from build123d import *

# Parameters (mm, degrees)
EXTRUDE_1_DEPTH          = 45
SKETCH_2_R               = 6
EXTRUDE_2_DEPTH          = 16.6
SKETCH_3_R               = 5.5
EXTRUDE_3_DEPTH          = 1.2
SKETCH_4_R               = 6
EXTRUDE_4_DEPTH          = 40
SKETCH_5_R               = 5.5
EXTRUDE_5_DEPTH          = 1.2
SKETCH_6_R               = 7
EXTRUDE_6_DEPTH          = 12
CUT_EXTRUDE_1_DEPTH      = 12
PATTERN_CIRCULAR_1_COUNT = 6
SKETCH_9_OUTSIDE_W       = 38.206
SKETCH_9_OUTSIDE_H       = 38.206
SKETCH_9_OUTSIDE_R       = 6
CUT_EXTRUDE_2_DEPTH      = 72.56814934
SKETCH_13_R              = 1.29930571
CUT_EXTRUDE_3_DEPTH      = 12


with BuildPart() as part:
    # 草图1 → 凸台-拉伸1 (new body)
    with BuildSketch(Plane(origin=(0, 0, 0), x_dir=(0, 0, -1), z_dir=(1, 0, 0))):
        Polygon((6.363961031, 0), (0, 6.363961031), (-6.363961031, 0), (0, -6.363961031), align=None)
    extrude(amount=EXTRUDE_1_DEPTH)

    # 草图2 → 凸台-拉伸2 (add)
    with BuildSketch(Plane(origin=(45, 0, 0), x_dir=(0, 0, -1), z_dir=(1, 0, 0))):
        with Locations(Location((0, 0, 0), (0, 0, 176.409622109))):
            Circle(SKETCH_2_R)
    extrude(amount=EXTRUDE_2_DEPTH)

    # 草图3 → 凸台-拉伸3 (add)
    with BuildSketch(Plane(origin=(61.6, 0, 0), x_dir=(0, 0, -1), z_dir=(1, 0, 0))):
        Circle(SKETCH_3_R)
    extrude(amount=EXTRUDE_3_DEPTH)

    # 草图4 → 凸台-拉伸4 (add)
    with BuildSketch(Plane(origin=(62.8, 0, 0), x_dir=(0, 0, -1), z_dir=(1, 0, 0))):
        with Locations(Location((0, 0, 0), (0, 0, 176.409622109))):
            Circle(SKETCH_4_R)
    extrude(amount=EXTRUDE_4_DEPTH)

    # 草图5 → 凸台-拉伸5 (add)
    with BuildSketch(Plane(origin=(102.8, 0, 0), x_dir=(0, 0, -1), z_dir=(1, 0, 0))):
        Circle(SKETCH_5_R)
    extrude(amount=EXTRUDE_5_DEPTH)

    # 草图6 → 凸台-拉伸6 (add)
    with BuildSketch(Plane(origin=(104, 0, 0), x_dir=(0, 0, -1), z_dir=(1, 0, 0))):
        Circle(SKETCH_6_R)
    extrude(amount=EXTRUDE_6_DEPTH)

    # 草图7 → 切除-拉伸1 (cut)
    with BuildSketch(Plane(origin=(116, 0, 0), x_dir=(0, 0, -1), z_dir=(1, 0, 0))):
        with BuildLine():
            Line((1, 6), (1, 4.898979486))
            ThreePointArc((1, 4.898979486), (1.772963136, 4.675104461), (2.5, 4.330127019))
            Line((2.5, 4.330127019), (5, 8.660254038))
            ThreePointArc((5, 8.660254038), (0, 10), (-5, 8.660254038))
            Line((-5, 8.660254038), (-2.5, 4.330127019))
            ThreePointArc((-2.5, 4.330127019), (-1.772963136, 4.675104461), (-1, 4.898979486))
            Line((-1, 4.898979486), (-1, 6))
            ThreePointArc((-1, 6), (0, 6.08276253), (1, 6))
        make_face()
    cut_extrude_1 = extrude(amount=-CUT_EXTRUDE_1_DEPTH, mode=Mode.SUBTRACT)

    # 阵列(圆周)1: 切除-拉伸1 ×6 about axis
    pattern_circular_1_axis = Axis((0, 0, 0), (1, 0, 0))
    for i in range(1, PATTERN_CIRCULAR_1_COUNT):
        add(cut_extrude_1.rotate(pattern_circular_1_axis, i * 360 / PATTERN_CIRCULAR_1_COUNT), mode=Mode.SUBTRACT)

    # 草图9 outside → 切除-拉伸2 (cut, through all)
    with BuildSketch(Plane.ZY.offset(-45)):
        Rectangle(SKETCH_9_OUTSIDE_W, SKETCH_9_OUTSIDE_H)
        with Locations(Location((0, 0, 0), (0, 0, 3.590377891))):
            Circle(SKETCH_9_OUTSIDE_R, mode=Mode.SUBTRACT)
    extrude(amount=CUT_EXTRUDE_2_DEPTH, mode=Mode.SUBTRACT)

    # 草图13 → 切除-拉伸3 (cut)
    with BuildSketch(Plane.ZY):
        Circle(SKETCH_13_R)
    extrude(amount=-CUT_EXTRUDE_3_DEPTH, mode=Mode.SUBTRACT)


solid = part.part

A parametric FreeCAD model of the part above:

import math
import FreeCAD as App
import Part
import Sketcher
from FreeCAD import Vector
Q = App.Units.Quantity

doc = App.newDocument("Part")
body = doc.addObject("PartDesign::Body", "Body")

# Sketch on YZ plane
sketch1 = body.newObject("Sketcher::SketchObject", "Sketch")
sketch1.AttachmentSupport = (doc.getObject("YZ_Plane"), [""])
sketch1.MapMode = "FlatFace"
sketch1.addGeometry([
    Part.LineSegment(Vector(0, -6, 0), Vector(6, 0, 0)),
    Part.LineSegment(Vector(6, 0, 0), Vector(0, 6, 0)),
    Part.LineSegment(Vector(0, 6, 0), Vector(-6, 0, 0)),
    Part.LineSegment(Vector(-6, 0, 0), Vector(0, -6, 0)),
], False)
sketch1.addConstraint([
    Sketcher.Constraint("Coincident", 0, 2, 1, 1),
    Sketcher.Constraint("Coincident", 1, 2, 2, 1),
    Sketcher.Constraint("Coincident", 2, 2, 3, 1),
    Sketcher.Constraint("Coincident", 3, 2, 0, 1),
    Sketcher.Constraint("Symmetric", 0, 2, 2, 2, -1, 1),
    Sketcher.Constraint("Symmetric", 1, 2, 3, 2, -1, 1),
    Sketcher.Constraint("PointOnObject", 0, 2, -1),
    Sketcher.Constraint("PointOnObject", 1, 2, -2),
    Sketcher.Constraint("Perpendicular", 0, 1),
    Sketcher.Constraint("Distance", 0, 9.0),
])
pad1 = body.newObject("PartDesign::Pad", "Pad")
pad1.Profile = sketch1
pad1.Length = 45

# Sketch on YZ plane
sketch2 = body.newObject("Sketcher::SketchObject", "Sketch001")
sketch2.AttachmentSupport = (doc.getObject("YZ_Plane"), [""])
sketch2.MapMode = "FlatFace"
sketch2.AttachmentOffset = App.Placement(Vector(0, 0, 45), App.Rotation())
sketch2.addGeometry(Part.Circle(Vector(0, 0, 0), Vector(0, 0, 1), 6), False)
sketch2.addConstraint([
    Sketcher.Constraint("Coincident", 0, 3, -1, 1),
    Sketcher.Constraint("Diameter", 0, 12.0),
])
pad2 = body.newObject("PartDesign::Pad", "Pad001")
pad2.Profile = sketch2
pad2.Length = 16.6

# Sketch on YZ plane
sketch3 = body.newObject("Sketcher::SketchObject", "Sketch002")
sketch3.AttachmentSupport = (doc.getObject("YZ_Plane"), [""])
sketch3.MapMode = "FlatFace"
sketch3.AttachmentOffset = App.Placement(Vector(0, 0, 61.6), App.Rotation())
sketch3.addGeometry(Part.Circle(Vector(0, 0, 0), Vector(0, 0, 1), 6), False)
sketch3.addConstraint([
    Sketcher.Constraint("Coincident", 0, 3, -1, 1),
    Sketcher.Constraint("Diameter", 0, 11.0),
])
pad3 = body.newObject("PartDesign::Pad", "Pad002")
pad3.Profile = sketch3
pad3.Length = 1.2

# Sketch on YZ plane
sketch4 = body.newObject("Sketcher::SketchObject", "Sketch003")
sketch4.AttachmentSupport = (doc.getObject("YZ_Plane"), [""])
sketch4.MapMode = "FlatFace"
sketch4.AttachmentOffset = App.Placement(Vector(0, 0, 62.8), App.Rotation())
sketch4.addGeometry(Part.Circle(Vector(0, 0, 0), Vector(0, 0, 1), 6), False)
sketch4.addConstraint([
    Sketcher.Constraint("Coincident", 0, 3, -1, 1),
    Sketcher.Constraint("Diameter", 0, 12.0),
])
pad4 = body.newObject("PartDesign::Pad", "Pad003")
pad4.Profile = sketch4
pad4.Length = 40

# Sketch on YZ plane
sketch5 = body.newObject("Sketcher::SketchObject", "Sketch004")
sketch5.AttachmentSupport = (doc.getObject("YZ_Plane"), [""])
sketch5.MapMode = "FlatFace"
sketch5.AttachmentOffset = App.Placement(Vector(0, 0, 102.8), App.Rotation())
sketch5.addGeometry(Part.Circle(Vector(0, 0, 0), Vector(0, 0, 1), 6), False)
sketch5.addConstraint([
    Sketcher.Constraint("Coincident", 0, 3, -1, 1),
    Sketcher.Constraint("Diameter", 0, 11.0),
])
pad5 = body.newObject("PartDesign::Pad", "Pad004")
pad5.Profile = sketch5
pad5.Length = 1.2

# Sketch on YZ plane
sketch6 = body.newObject("Sketcher::SketchObject", "Sketch005")
sketch6.AttachmentSupport = (doc.getObject("YZ_Plane"), [""])
sketch6.MapMode = "FlatFace"
sketch6.AttachmentOffset = App.Placement(Vector(0, 0, 104), App.Rotation())
sketch6.addGeometry(Part.Circle(Vector(0, 0, 0), Vector(0, 0, 1), 7), False)
sketch6.addConstraint([
    Sketcher.Constraint("Coincident", 0, 3, -1, 1),
    Sketcher.Constraint("Diameter", 0, 14.0),
])
pad6 = body.newObject("PartDesign::Pad", "Pad005")
pad6.Profile = sketch6
pad6.Length = 12

# Sketch on YZ plane
sketch7 = body.newObject("Sketcher::SketchObject", "Sketch006")
sketch7.AttachmentSupport = (doc.getObject("YZ_Plane"), [""])
sketch7.MapMode = "FlatFace"
sketch7.AttachmentOffset = App.Placement(Vector(0, 0, 116), App.Rotation())
sketch7.addGeometry([
    Part.LineSegment(Vector(6, -1, 0), Vector(4.9, -1, 0)),  # 0
    Part.ArcOfCircle(Part.Circle(Vector(0, 0, 0), Vector(0, 0, 1), 5), math.radians(-30), math.radians(-11.54)),  # 1
    Part.LineSegment(Vector(4.3, -2.5, 0), Vector(8.7, -5, 0)),  # 2
    Part.ArcOfCircle(Part.Circle(Vector(0, 0, 0), Vector(0, 0, 1), 10), math.radians(-30), math.radians(30)),  # 3
    Part.LineSegment(Vector(8.7, 5, 0), Vector(4.3, 2.5, 0)),  # 4
    Part.ArcOfCircle(Part.Circle(Vector(0, 0, 0), Vector(0, 0, 1), 5), math.radians(11.54), math.radians(30)),  # 5
    Part.LineSegment(Vector(4.9, 1, 0), Vector(6, 1, 0)),  # 6
    Part.ArcOfCircle(Part.Circle(Vector(0, 0, 0), Vector(0, 0, 1), 6.1), math.radians(-9.46), math.radians(9.46)),  # 7
], False)
sketch7.addConstraint([
    Sketcher.Constraint("Coincident", 0, 2, 1, 2),
    Sketcher.Constraint("Coincident", 1, 1, 2, 1),
    Sketcher.Constraint("Coincident", 2, 2, 3, 1),
    Sketcher.Constraint("Coincident", 3, 2, 4, 1),
    Sketcher.Constraint("Coincident", 4, 2, 5, 2),
    Sketcher.Constraint("Coincident", 5, 1, 6, 1),
    Sketcher.Constraint("Coincident", 6, 2, 7, 2),
    Sketcher.Constraint("Coincident", 7, 1, 0, 1),
    Sketcher.Constraint("Horizontal", 0),
    Sketcher.Constraint("Horizontal", 6),
    Sketcher.Constraint("Coincident", 1, 3, -1, 1),
    Sketcher.Constraint("Coincident", 3, 3, -1, 1),
    Sketcher.Constraint("Coincident", 5, 3, -1, 1),
    Sketcher.Constraint("Coincident", 7, 3, -1, 1),
    Sketcher.Constraint("Equal", 1, 5),
    Sketcher.Constraint("Vertical", 2, 2, 3, 2),
    Sketcher.Constraint("Vertical", 1, 1, 4, 2),
    Sketcher.Constraint("Vertical", 0, 2, 5, 1),
    Sketcher.Constraint("Radius", 1, 5.0),
    Sketcher.Constraint("Radius", 3, 10.0),
    Sketcher.Constraint("Angle", 2, Q("-30 deg")),
    Sketcher.Constraint("DistanceY", 0, 2, -1, 1, 1.0),
    Sketcher.Constraint("DistanceY", 2, 2, -1, 1, 5.0),
    Sketcher.Constraint("DistanceX", -1, 1, 6, 2, 6.0),
])
pocket1 = body.newObject("PartDesign::Pocket", "Pocket")
pocket1.Profile = sketch7
pocket1.Length = 12
doc.recompute()

polarpattern = body.newObject("PartDesign::PolarPattern", "PolarPattern")
polarpattern.Originals = [pocket1]
polarpattern.Axis = (doc.getObject("X_Axis"), [""])
polarpattern.Angle = 360
polarpattern.Occurrences = 6
body.Tip = polarpattern

# Sketch on YZ plane
sketch8 = body.newObject("Sketcher::SketchObject", "Sketch007")
sketch8.AttachmentSupport = (doc.getObject("YZ_Plane"), [""])
sketch8.MapMode = "FlatFace"
sketch8.AttachmentOffset = App.Placement(Vector(0, 0, 45), App.Rotation())
sketch8.addGeometry([
    Part.LineSegment(Vector(19, -19, 0), Vector(-19, -19, 0)),  # 0
    Part.LineSegment(Vector(-19, -19, 0), Vector(-19, 19, 0)),  # 1
    Part.LineSegment(Vector(-19, 19, 0), Vector(19, 19, 0)),  # 2
    Part.LineSegment(Vector(19, 19, 0), Vector(19, -19, 0)),  # 3
    Part.Circle(Vector(0, 0, 0), Vector(0, 0, 1), 6),  # 4
], False)
sketch8.addConstraint([
    Sketcher.Constraint("Coincident", 0, 2, 1, 1),
    Sketcher.Constraint("Coincident", 1, 2, 2, 1),
    Sketcher.Constraint("Coincident", 2, 2, 3, 1),
    Sketcher.Constraint("Coincident", 3, 2, 0, 1),
    Sketcher.Constraint("Horizontal", 0),
    Sketcher.Constraint("Vertical", 1),
    Sketcher.Constraint("Horizontal", 2),
    Sketcher.Constraint("Vertical", 3),
    Sketcher.Constraint("Coincident", 4, 3, -1, 1),
    Sketcher.Constraint("Symmetric", 0, 2, 2, 2, -1, 1),
    Sketcher.Constraint("Equal", 2, 1),
    Sketcher.Constraint("Diameter", 4, 12.0),
    Sketcher.Constraint("DistanceX", 0, 2, 0, 1, 38.206),
])
pocket2 = body.newObject("PartDesign::Pocket", "Pocket001")
pocket2.Profile = sketch8
pocket2.Type = "ThroughAll"

# Sketch on YZ plane
sketch9 = body.newObject("Sketcher::SketchObject", "Sketch008")
sketch9.AttachmentSupport = (doc.getObject("YZ_Plane"), [""])
sketch9.MapMode = "FlatFace"
sketch9.addGeometry(Part.Circle(Vector(0, 0, 0), Vector(0, 0, 1), 1.3), False)
sketch9.addConstraint([
    Sketcher.Constraint("Coincident", 0, 3, -1, 1),
    Sketcher.Constraint("Diameter", 0, 2.598611),
])
pocket3 = body.newObject("PartDesign::Pocket", "Pocket002")
pocket3.Profile = sketch9
pocket3.Length = 12
pocket3.Reversed = True

doc.recompute()
